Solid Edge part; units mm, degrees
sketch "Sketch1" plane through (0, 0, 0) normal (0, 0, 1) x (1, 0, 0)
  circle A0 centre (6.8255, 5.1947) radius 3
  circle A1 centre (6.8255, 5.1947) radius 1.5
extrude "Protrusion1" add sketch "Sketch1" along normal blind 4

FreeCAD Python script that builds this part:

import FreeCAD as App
import Part
import Sketcher

V = App.Vector
Q = App.Units.Quantity

doc = App.newDocument("Part")
params = doc.addObject("Spreadsheet::Sheet", "Params")
for row, (alias, value) in enumerate([
    ("sketch1_diameter", "6 mm"),
    ("sketch1_diameter2", "3 mm"),
    ("pad1_length", "4 mm"),
], start=1):
    params.set(f"A{row}", alias)
    params.set(f"B{row}", "=" + value)
    params.setAlias(f"B{row}", alias)

body = doc.addObject("PartDesign::Body", "Body")

# Sketch on XY plane
sketch1 = body.newObject("Sketcher::SketchObject", "Sketch")
sketch1.AttachmentSupport = (doc.getObject("XY_Plane"), [""])
sketch1.MapMode = "FlatFace"
sketch1.addGeometry([
    Part.Circle(V(6.8, 5.2, 0), V(0, 0, 1), 3),
    Part.Circle(V(6.8, 5.2, 0), V(0, 0, 1), 1.5),
], False)
sketch1.addConstraint([
    Sketcher.Constraint("Coincident", 1, 3, 0, 3),
    Sketcher.Constraint("Diameter", 0, Q("6 mm")),
    Sketcher.Constraint("Diameter", 1, Q("3 mm")),
    Sketcher.Constraint("DistanceX", -1, 1, 0, 3, Q("6.8255 mm")),
    Sketcher.Constraint("DistanceY", -1, 1, 0, 3, Q("5.1947 mm")),
])
sketch1.setExpression("Constraints[1]", "Params.sketch1_diameter")
sketch1.setExpression("Constraints[2]", "Params.sketch1_diameter2")
pad1 = body.newObject("PartDesign::Pad", "Pad")
pad1.Profile = sketch1
pad1.setExpression("Length", "Params.pad1_length")

doc.recompute()
